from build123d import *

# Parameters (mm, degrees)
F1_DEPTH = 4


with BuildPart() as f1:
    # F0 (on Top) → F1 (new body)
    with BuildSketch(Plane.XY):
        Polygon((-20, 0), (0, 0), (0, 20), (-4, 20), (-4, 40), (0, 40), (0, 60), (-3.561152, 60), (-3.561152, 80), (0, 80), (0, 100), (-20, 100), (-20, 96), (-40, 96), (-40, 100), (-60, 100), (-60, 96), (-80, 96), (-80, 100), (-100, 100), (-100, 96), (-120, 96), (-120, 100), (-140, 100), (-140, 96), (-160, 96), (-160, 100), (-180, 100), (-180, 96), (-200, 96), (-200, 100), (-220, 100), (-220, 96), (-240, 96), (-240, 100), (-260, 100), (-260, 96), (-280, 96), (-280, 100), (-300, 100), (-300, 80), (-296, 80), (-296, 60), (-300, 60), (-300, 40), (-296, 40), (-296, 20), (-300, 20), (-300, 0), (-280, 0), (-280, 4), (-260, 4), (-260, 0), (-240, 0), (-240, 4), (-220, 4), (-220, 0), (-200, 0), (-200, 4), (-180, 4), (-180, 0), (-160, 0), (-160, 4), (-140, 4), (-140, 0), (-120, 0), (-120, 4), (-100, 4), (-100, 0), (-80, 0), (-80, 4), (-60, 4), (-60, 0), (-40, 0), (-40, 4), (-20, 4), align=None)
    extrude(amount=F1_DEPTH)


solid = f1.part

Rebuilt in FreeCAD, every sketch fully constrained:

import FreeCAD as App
import Part
import Sketcher
from FreeCAD import Vector

doc = App.newDocument("Part")
body = doc.addObject("PartDesign::Body", "Body")

sketch1 = body.newObject("Sketcher::SketchObject", "Sketch")
sketch1.AttachmentSupport = (doc.getObject("XY_Plane"), [""])
sketch1.MapMode = "FlatFace"
sketch1.addGeometry(Part.LineSegment(Vector(-20, 0, 0), Vector(0, 0, 0)), False)
sketch1.addGeometry(Part.LineSegment(Vector(0, 0, 0), Vector(0, 20, 0)), False)
sketch1.addGeometry(Part.LineSegment(Vector(0, 20, 0), Vector(-4, 20, 0)), False)
sketch1.addGeometry(Part.LineSegment(Vector(-4, 20, 0), Vector(-4, 40, 0)), False)
sketch1.addGeometry(Part.LineSegment(Vector(-4, 40, 0), Vector(0, 40, 0)), False)
sketch1.addGeometry(Part.LineSegment(Vector(0, 40, 0), Vector(0, 60, 0)), False)
sketch1.addGeometry(Part.LineSegment(Vector(0, 60, 0), Vector(-3.6, 60, 0)), False)
sketch1.addGeometry(Part.LineSegment(Vector(-3.6, 60, 0), Vector(-3.6, 80, 0)), False)
sketch1.addGeometry(Part.LineSegment(Vector(-3.6, 80, 0), Vector(0, 80, 0)), False)
sketch1.addGeometry(Part.LineSegment(Vector(0, 80, 0), Vector(0, 100, 0)), False)
sketch1.addGeometry(Part.LineSegment(Vector(0, 100, 0), Vector(-20, 100, 0)), False)
sketch1.addGeometry(Part.LineSegment(Vector(-20, 100, 0), Vector(-20, 96, 0)), False)
sketch1.addGeometry(Part.LineSegment(Vector(-20, 96, 0), Vector(-40, 96, 0)), False)
sketch1.addGeometry(Part.LineSegment(Vector(-40, 96, 0), Vector(-40, 100, 0)), False)
sketch1.addGeometry(Part.LineSegment(Vector(-40, 100, 0), Vector(-60, 100, 0)), False)
sketch1.addGeometry(Part.LineSegment(Vector(-60, 100, 0), Vector(-60, 96, 0)), False)
sketch1.addGeometry(Part.LineSegment(Vector(-60, 96, 0), Vector(-80, 96, 0)), False)
sketch1.addGeometry(Part.LineSegment(Vector(-80, 96, 0), Vector(-80, 100, 0)), False)
sketch1.addGeometry(Part.LineSegment(Vector(-80, 100, 0), Vector(-100, 100, 0)), False)
sketch1.addGeometry(Part.LineSegment(Vector(-100, 100, 0), Vector(-100, 96, 0)), False)
sketch1.addGeometry(Part.LineSegment(Vector(-100, 96, 0), Vector(-120, 96, 0)), False)
sketch1.addGeometry(Part.LineSegment(Vector(-120, 96, 0), Vector(-120, 100, 0)), False)
sketch1.addGeometry(Part.LineSegment(Vector(-120, 100, 0), Vector(-140, 100, 0)), False)
sketch1.addGeometry(Part.LineSegment(Vector(-140, 100, 0), Vector(-140, 96, 0)), False)
sketch1.addGeometry(Part.LineSegment(Vector(-140, 96, 0), Vector(-160, 96, 0)), False)
sketch1.addGeometry(Part.LineSegment(Vector(-160, 96, 0), Vector(-160, 100, 0)), False)
sketch1.addGeometry(Part.LineSegment(Vector(-160, 100, 0), Vector(-180, 100, 0)), False)
sketch1.addGeometry(Part.LineSegment(Vector(-180, 100, 0), Vector(-180, 96, 0)), False)
sketch1.addGeometry(Part.LineSegment(Vector(-180, 96, 0), Vector(-200, 96, 0)), False)
sketch1.addGeometry(Part.LineSegment(Vector(-200, 96, 0), Vector(-200, 100, 0)), False)
sketch1.addGeometry(Part.LineSegment(Vector(-200, 100, 0), Vector(-220, 100, 0)), False)
sketch1.addGeometry(Part.LineSegment(Vector(-220, 100, 0), Vector(-220, 96, 0)), False)
sketch1.addGeometry(Part.LineSegment(Vector(-220, 96, 0), Vector(-240, 96, 0)), False)
sketch1.addGeometry(Part.LineSegment(Vector(-240, 96, 0), Vector(-240, 100, 0)), False)
sketch1.addGeometry(Part.LineSegment(Vector(-240, 100, 0), Vector(-260, 100, 0)), False)
sketch1.addGeometry(Part.LineSegment(Vector(-260, 100, 0), Vector(-260, 96, 0)), False)
sketch1.addGeometry(Part.LineSegment(Vector(-260, 96, 0), Vector(-280, 96, 0)), False)
sketch1.addGeometry(Part.LineSegment(Vector(-280, 96, 0), Vector(-280, 100, 0)), False)
sketch1.addGeometry(Part.LineSegment(Vector(-280, 100, 0), Vector(-300, 100, 0)), False)
sketch1.addGeometry(Part.LineSegment(Vector(-300, 100, 0), Vector(-300, 80, 0)), False)
sketch1.addGeometry(Part.LineSegment(Vector(-300, 80, 0), Vector(-296, 80, 0)), False)
sketch1.addGeometry(Part.LineSegment(Vector(-296, 80, 0), Vector(-296, 60, 0)), False)
sketch1.addGeometry(Part.LineSegment(Vector(-296, 60, 0), Vector(-300, 60, 0)), False)
sketch1.addGeometry(Part.LineSegment(Vector(-300, 60, 0), Vector(-300, 40, 0)), False)
sketch1.addGeometry(Part.LineSegment(Vector(-300, 40, 0), Vector(-296, 40, 0)), False)
sketch1.addGeometry(Part.LineSegment(Vector(-296, 40, 0), Vector(-296, 20, 0)), False)
sketch1.addGeometry(Part.LineSegment(Vector(-296, 20, 0), Vector(-300, 20, 0)), False)
sketch1.addGeometry(Part.LineSegment(Vector(-300, 20, 0), Vector(-300, 0, 0)), False)
sketch1.addGeometry(Part.LineSegment(Vector(-300, 0, 0), Vector(-280, 0, 0)), False)
sketch1.addGeometry(Part.LineSegment(Vector(-280, 0, 0), Vector(-280, 4, 0)), False)
sketch1.addGeometry(Part.LineSegment(Vector(-280, 4, 0), Vector(-260, 4, 0)), False)
sketch1.addGeometry(Part.LineSegment(Vector(-260, 4, 0), Vector(-260, 0, 0)), False)
sketch1.addGeometry(Part.LineSegment(Vector(-260, 0, 0), Vector(-240, 0, 0)), False)
sketch1.addGeometry(Part.LineSegment(Vector(-240, 0, 0), Vector(-240, 4, 0)), False)
sketch1.addGeometry(Part.LineSegment(Vector(-240, 4, 0), Vector(-220, 4, 0)), False)
sketch1.addGeometry(Part.LineSegment(Vector(-220, 4, 0), Vector(-220, 0, 0)), False)
sketch1.addGeometry(Part.LineSegment(Vector(-220, 0, 0), Vector(-200, 0, 0)), False)
sketch1.addGeometry(Part.LineSegment(Vector(-200, 0, 0), Vector(-200, 4, 0)), False)
sketch1.addGeometry(Part.LineSegment(Vector(-200, 4, 0), Vector(-180, 4, 0)), False)
sketch1.addGeometry(Part.LineSegment(Vector(-180, 4, 0), Vector(-180, 0, 0)), False)
sketch1.addGeometry(Part.LineSegment(Vector(-180, 0, 0), Vector(-160, 0, 0)), False)
sketch1.addGeometry(Part.LineSegment(Vector(-160, 0, 0), Vector(-160, 4, 0)), False)
sketch1.addGeometry(Part.LineSegment(Vector(-160, 4, 0), Vector(-140, 4, 0)), False)
sketch1.addGeometry(Part.LineSegment(Vector(-140, 4, 0), Vector(-140, 0, 0)), False)
sketch1.addGeometry(Part.LineSegment(Vector(-140, 0, 0), Vector(-120, 0, 0)), False)
sketch1.addGeometry(Part.LineSegment(Vector(-120, 0, 0), Vector(-120, 4, 0)), False)
sketch1.addGeometry(Part.LineSegment(Vector(-120, 4, 0), Vector(-100, 4, 0)), False)
sketch1.addGeometry(Part.LineSegment(Vector(-100, 4, 0), Vector(-100, 0, 0)), False)
sketch1.addGeometry(Part.LineSegment(Vector(-100, 0, 0), Vector(-80, 0, 0)), False)
sketch1.addGeometry(Part.LineSegment(Vector(-80, 0, 0), Vector(-80, 4, 0)), False)
sketch1.addGeometry(Part.LineSegment(Vector(-80, 4, 0), Vector(-60, 4, 0)), False)
sketch1.addGeometry(Part.LineSegment(Vector(-60, 4, 0), Vector(-60, 0, 0)), False)
sketch1.addGeometry(Part.LineSegment(Vector(-60, 0, 0), Vector(-40, 0, 0)), False)
sketch1.addGeometry(Part.LineSegment(Vector(-40, 0, 0), Vector(-40, 4, 0)), False)
sketch1.addGeometry(Part.LineSegment(Vector(-40, 4, 0), Vector(-20, 4, 0)), False)
sketch1.addGeometry(Part.LineSegment(Vector(-20, 4, 0), Vector(-20, 0, 0)), False)
sketch1.addConstraint(Sketcher.Constraint("Coincident", 0, 2, 1, 1))
sketch1.addConstraint(Sketcher.Constraint("Coincident", 1, 2, 2, 1))
sketch1.addConstraint(Sketcher.Constraint("Coincident", 2, 2, 3, 1))
sketch1.addConstraint(Sketcher.Constraint("Coincident", 3, 2, 4, 1))
sketch1.addConstraint(Sketcher.Constraint("Coincident", 4, 2, 5, 1))
sketch1.addConstraint(Sketcher.Constraint("Coincident", 5, 2, 6, 1))
sketch1.addConstraint(Sketcher.Constraint("Coincident", 6, 2, 7, 1))
sketch1.addConstraint(Sketcher.Constraint("Coincident", 7, 2, 8, 1))
sketch1.addConstraint(Sketcher.Constraint("Coincident", 8, 2, 9, 1))
sketch1.addConstraint(Sketcher.Constraint("Coincident", 9, 2, 10, 1))
sketch1.addConstraint(Sketcher.Constraint("Coincident", 10, 2, 11, 1))
sketch1.addConstraint(Sketcher.Constraint("Coincident", 11, 2, 12, 1))
sketch1.addConstraint(Sketcher.Constraint("Coincident", 12, 2, 13, 1))
sketch1.addConstraint(Sketcher.Constraint("Coincident", 13, 2, 14, 1))
sketch1.addConstraint(Sketcher.Constraint("Coincident", 14, 2, 15, 1))
sketch1.addConstraint(Sketcher.Constraint("Coincident", 15, 2, 16, 1))
sketch1.addConstraint(Sketcher.Constraint("Coincident", 16, 2, 17, 1))
sketch1.addConstraint(Sketcher.Constraint("Coincident", 17, 2, 18, 1))
sketch1.addConstraint(Sketcher.Constraint("Coincident", 18, 2, 19, 1))
sketch1.addConstraint(Sketcher.Constraint("Coincident", 19, 2, 20, 1))
sketch1.addConstraint(Sketcher.Constraint("Coincident", 20, 2, 21, 1))
sketch1.addConstraint(Sketcher.Constraint("Coincident", 21, 2, 22, 1))
sketch1.addConstraint(Sketcher.Constraint("Coincident", 22, 2, 23, 1))
sketch1.addConstraint(Sketcher.Constraint("Coincident", 23, 2, 24, 1))
sketch1.addConstraint(Sketcher.Constraint("Coincident", 24, 2, 25, 1))
sketch1.addConstraint(Sketcher.Constraint("Coincident", 25, 2, 26, 1))
sketch1.addConstraint(Sketcher.Constraint("Coincident", 26, 2, 27, 1))
sketch1.addConstraint(Sketcher.Constraint("Coincident", 27, 2, 28, 1))
sketch1.addConstraint(Sketcher.Constraint("Coincident", 28, 2, 29, 1))
sketch1.addConstraint(Sketcher.Constraint("Coincident", 29, 2, 30, 1))
sketch1.addConstraint(Sketcher.Constraint("Coincident", 30, 2, 31, 1))
sketch1.addConstraint(Sketcher.Constraint("Coincident", 31, 2, 32, 1))
sketch1.addConstraint(Sketcher.Constraint("Coincident", 32, 2, 33, 1))
sketch1.addConstraint(Sketcher.Constraint("Coincident", 33, 2, 34, 1))
sketch1.addConstraint(Sketcher.Constraint("Coincident", 34, 2, 35, 1))
sketch1.addConstraint(Sketcher.Constraint("Coincident", 35, 2, 36, 1))
sketch1.addConstraint(Sketcher.Constraint("Coincident", 36, 2, 37, 1))
sketch1.addConstraint(Sketcher.Constraint("Coincident", 37, 2, 38, 1))
sketch1.addConstraint(Sketcher.Constraint("Coincident", 38, 2, 39, 1))
sketch1.addConstraint(Sketcher.Constraint("Coincident", 39, 2, 40, 1))
sketch1.addConstraint(Sketcher.Constraint("Coincident", 40, 2, 41, 1))
sketch1.addConstraint(Sketcher.Constraint("Coincident", 41, 2, 42, 1))
sketch1.addConstraint(Sketcher.Constraint("Coincident", 42, 2, 43, 1))
sketch1.addConstraint(Sketcher.Constraint("Coincident", 43, 2, 44, 1))
sketch1.addConstraint(Sketcher.Constraint("Coincident", 44, 2, 45, 1))
sketch1.addConstraint(Sketcher.Constraint("Coincident", 45, 2, 46, 1))
sketch1.addConstraint(Sketcher.Constraint("Coincident", 46, 2, 47, 1))
sketch1.addConstraint(Sketcher.Constraint("Coincident", 47, 2, 48, 1))
sketch1.addConstraint(Sketcher.Constraint("Coincident", 48, 2, 49, 1))
sketch1.addConstraint(Sketcher.Constraint("Coincident", 49, 2, 50, 1))
sketch1.addConstraint(Sketcher.Constraint("Coincident", 50, 2, 51, 1))
sketch1.addConstraint(Sketcher.Constraint("Coincident", 51, 2, 52, 1))
sketch1.addConstraint(Sketcher.Constraint("Coincident", 52, 2, 53, 1))
sketch1.addConstraint(Sketcher.Constraint("Coincident", 53, 2, 54, 1))
sketch1.addConstraint(Sketcher.Constraint("Coincident", 54, 2, 55, 1))
sketch1.addConstraint(Sketcher.Constraint("Coincident", 55, 2, 56, 1))
sketch1.addConstraint(Sketcher.Constraint("Coincident", 56, 2, 57, 1))
sketch1.addConstraint(Sketcher.Constraint("Coincident", 57, 2, 58, 1))
sketch1.addConstraint(Sketcher.Constraint("Coincident", 58, 2, 59, 1))
sketch1.addConstraint(Sketcher.Constraint("Coincident", 59, 2, 60, 1))
sketch1.addConstraint(Sketcher.Constraint("Coincident", 60, 2, 61, 1))
sketch1.addConstraint(Sketcher.Constraint("Coincident", 61, 2, 62, 1))
sketch1.addConstraint(Sketcher.Constraint("Coincident", 62, 2, 63, 1))
sketch1.addConstraint(Sketcher.Constraint("Coincident", 63, 2, 64, 1))
sketch1.addConstraint(Sketcher.Constraint("Coincident", 64, 2, 65, 1))
sketch1.addConstraint(Sketcher.Constraint("Coincident", 65, 2, 66, 1))
sketch1.addConstraint(Sketcher.Constraint("Coincident", 66, 2, 67, 1))
sketch1.addConstraint(Sketcher.Constraint("Coincident", 67, 2, 68, 1))
sketch1.addConstraint(Sketcher.Constraint("Coincident", 68, 2, 69, 1))
sketch1.addConstraint(Sketcher.Constraint("Coincident", 69, 2, 70, 1))
sketch1.addConstraint(Sketcher.Constraint("Coincident", 70, 2, 71, 1))
sketch1.addConstraint(Sketcher.Constraint("Coincident", 71, 2, 72, 1))
sketch1.addConstraint(Sketcher.Constraint("Coincident", 72, 2, 73, 1))
sketch1.addConstraint(Sketcher.Constraint("Coincident", 73, 2, 74, 1))
sketch1.addConstraint(Sketcher.Constraint("Coincident", 74, 2, 75, 1))
sketch1.addConstraint(Sketcher.Constraint("Coincident", 75, 2, 0, 1))
sketch1.addConstraint(Sketcher.Constraint("Horizontal", 0))
sketch1.addConstraint(Sketcher.Constraint("Vertical", 1))
sketch1.addConstraint(Sketcher.Constraint("Horizontal", 2))
sketch1.addConstraint(Sketcher.Constraint("Vertical", 3))
sketch1.addConstraint(Sketcher.Constraint("Horizontal", 4))
sketch1.addConstraint(Sketcher.Constraint("Vertical", 5))
sketch1.addConstraint(Sketcher.Constraint("Horizontal", 6))
sketch1.addConstraint(Sketcher.Constraint("Vertical", 7))
sketch1.addConstraint(Sketcher.Constraint("Horizontal", 8))
sketch1.addConstraint(Sketcher.Constraint("Vertical", 9))
sketch1.addConstraint(Sketcher.Constraint("Horizontal", 10))
sketch1.addConstraint(Sketcher.Constraint("Vertical", 11))
sketch1.addConstraint(Sketcher.Constraint("Horizontal", 12))
sketch1.addConstraint(Sketcher.Constraint("Vertical", 13))
sketch1.addConstraint(Sketcher.Constraint("Horizontal", 14))
sketch1.addConstraint(Sketcher.Constraint("Vertical", 15))
sketch1.addConstraint(Sketcher.Constraint("Horizontal", 16))
sketch1.addConstraint(Sketcher.Constraint("Vertical", 17))
sketch1.addConstraint(Sketcher.Constraint("Horizontal", 18))
sketch1.addConstraint(Sketcher.Constraint("Vertical", 19))
sketch1.addConstraint(Sketcher.Constraint("Horizontal", 20))
sketch1.addConstraint(Sketcher.Constraint("Vertical", 21))
sketch1.addConstraint(Sketcher.Constraint("Horizontal", 22))
sketch1.addConstraint(Sketcher.Constraint("Vertical", 23))
sketch1.addConstraint(Sketcher.Constraint("Horizontal", 24))
sketch1.addConstraint(Sketcher.Constraint("Vertical", 25))
sketch1.addConstraint(Sketcher.Constraint("Horizontal", 26))
sketch1.addConstraint(Sketcher.Constraint("Vertical", 27))
sketch1.addConstraint(Sketcher.Constraint("Horizontal", 28))
sketch1.addConstraint(Sketcher.Constraint("Vertical", 29))
sketch1.addConstraint(Sketcher.Constraint("Horizontal", 30))
sketch1.addConstraint(Sketcher.Constraint("Vertical", 31))
sketch1.addConstraint(Sketcher.Constraint("Horizontal", 32))
sketch1.addConstraint(Sketcher.Constraint("Vertical", 33))
sketch1.addConstraint(Sketcher.Constraint("Horizontal", 34))
sketch1.addConstraint(Sketcher.Constraint("Vertical", 35))
sketch1.addConstraint(Sketcher.Constraint("Horizontal", 36))
sketch1.addConstraint(Sketcher.Constraint("Vertical", 37))
sketch1.addConstraint(Sketcher.Constraint("Horizontal", 38))
sketch1.addConstraint(Sketcher.Constraint("Vertical", 39))
sketch1.addConstraint(Sketcher.Constraint("Horizontal", 40))
sketch1.addConstraint(Sketcher.Constraint("Vertical", 41))
sketch1.addConstraint(Sketcher.Constraint("Horizontal", 42))
sketch1.addConstraint(Sketcher.Constraint("Vertical", 43))
sketch1.addConstraint(Sketcher.Constraint("Horizontal", 44))
sketch1.addConstraint(Sketcher.Constraint("Vertical", 45))
sketch1.addConstraint(Sketcher.Constraint("Horizontal", 46))
sketch1.addConstraint(Sketcher.Constraint("Vertical", 47))
sketch1.addConstraint(Sketcher.Constraint("Horizontal", 48))
sketch1.addConstraint(Sketcher.Constraint("Vertical", 49))
sketch1.addConstraint(Sketcher.Constraint("Horizontal", 50))
sketch1.addConstraint(Sketcher.Constraint("Vertical", 51))
sketch1.addConstraint(Sketcher.Constraint("Horizontal", 52))
sketch1.addConstraint(Sketcher.Constraint("Vertical", 53))
sketch1.addConstraint(Sketcher.Constraint("Horizontal", 54))
sketch1.addConstraint(Sketcher.Constraint("Vertical", 55))
sketch1.addConstraint(Sketcher.Constraint("Horizontal", 56))
sketch1.addConstraint(Sketcher.Constraint("Vertical", 57))
sketch1.addConstraint(Sketcher.Constraint("Horizontal", 58))
sketch1.addConstraint(Sketcher.Constraint("Vertical", 59))
sketch1.addConstraint(Sketcher.Constraint("Horizontal", 60))
sketch1.addConstraint(Sketcher.Constraint("Vertical", 61))
sketch1.addConstraint(Sketcher.Constraint("Horizontal", 62))
sketch1.addConstraint(Sketcher.Constraint("Vertical", 63))
sketch1.addConstraint(Sketcher.Constraint("Horizontal", 64))
sketch1.addConstraint(Sketcher.Constraint("Vertical", 65))
sketch1.addConstraint(Sketcher.Constraint("Horizontal", 66))
sketch1.addConstraint(Sketcher.Constraint("Vertical", 67))
sketch1.addConstraint(Sketcher.Constraint("Horizontal", 68))
sketch1.addConstraint(Sketcher.Constraint("Vertical", 69))
sketch1.addConstraint(Sketcher.Constraint("Horizontal", 70))
sketch1.addConstraint(Sketcher.Constraint("Vertical", 71))
sketch1.addConstraint(Sketcher.Constraint("Horizontal", 72))
sketch1.addConstraint(Sketcher.Constraint("Vertical", 73))
sketch1.addConstraint(Sketcher.Constraint("Horizontal", 74))
sketch1.addConstraint(Sketcher.Constraint("Vertical", 75))
sketch1.addConstraint(Sketcher.Constraint("Coincident", 0, 2, -1, 1))
sketch1.addConstraint(Sketcher.Constraint("PointOnObject", 4, 2, -2))
sketch1.addConstraint(Sketcher.Constraint("PointOnObject", 8, 2, -2))
sketch1.addConstraint(Sketcher.Constraint("PointOnObject", 47, 2, -1))
sketch1.addConstraint(Sketcher.Constraint("PointOnObject", 51, 2, -1))
sketch1.addConstraint(Sketcher.Constraint("PointOnObject", 55, 2, -1))
sketch1.addConstraint(Sketcher.Constraint("PointOnObject", 59, 2, -1))
sketch1.addConstraint(Sketcher.Constraint("PointOnObject", 63, 2, -1))
sketch1.addConstraint(Sketcher.Constraint("PointOnObject", 67, 2, -1))
sketch1.addConstraint(Sketcher.Constraint("PointOnObject", 71, 2, -1))
sketch1.addConstraint(Sketcher.Constraint("Horizontal", 10, 2, 13, 2))
sketch1.addConstraint(Sketcher.Constraint("Horizontal", 12, 2, 15, 2))
sketch1.addConstraint(Sketcher.Constraint("Horizontal", 14, 2, 17, 2))
sketch1.addConstraint(Sketcher.Constraint("Horizontal", 16, 2, 19, 2))
sketch1.addConstraint(Sketcher.Constraint("Horizontal", 18, 2, 21, 2))
sketch1.addConstraint(Sketcher.Constraint("Horizontal", 20, 2, 23, 2))
sketch1.addConstraint(Sketcher.Constraint("Horizontal", 22, 2, 25, 2))
sketch1.addConstraint(Sketcher.Constraint("Horizontal", 24, 2, 27, 2))
sketch1.addConstraint(Sketcher.Constraint("Horizontal", 26, 2, 29, 2))
sketch1.addConstraint(Sketcher.Constraint("Horizontal", 28, 2, 31, 2))
sketch1.addConstraint(Sketcher.Constraint("Horizontal", 30, 2, 33, 2))
sketch1.addConstraint(Sketcher.Constraint("Horizontal", 32, 2, 35, 2))
sketch1.addConstraint(Sketcher.Constraint("Horizontal", 34, 2, 37, 2))
sketch1.addConstraint(Sketcher.Constraint("Horizontal", 8, 2, 39, 2))
sketch1.addConstraint(Sketcher.Constraint("Horizontal", 6, 2, 41, 2))
sketch1.addConstraint(Sketcher.Constraint("Horizontal", 4, 2, 43, 2))
sketch1.addConstraint(Sketcher.Constraint("Horizontal", 2, 2, 45, 2))
sketch1.addConstraint(Sketcher.Constraint("Horizontal", 50, 2, 53, 2))
sketch1.addConstraint(Sketcher.Constraint("Horizontal", 54, 2, 57, 2))
sketch1.addConstraint(Sketcher.Constraint("Horizontal", 58, 2, 61, 2))
sketch1.addConstraint(Sketcher.Constraint("Horizontal", 62, 2, 65, 2))
sketch1.addConstraint(Sketcher.Constraint("Horizontal", 66, 2, 69, 2))
sketch1.addConstraint(Sketcher.Constraint("Horizontal", 70, 2, 73, 2))
sketch1.addConstraint(Sketcher.Constraint("Vertical", 39, 2, 42, 2))
sketch1.addConstraint(Sketcher.Constraint("Vertical", 41, 2, 44, 2))
sketch1.addConstraint(Sketcher.Constraint("Vertical", 43, 2, 46, 2))
sketch1.addConstraint(Sketcher.Constraint("Vertical", 37, 2, 48, 2))
sketch1.addConstraint(Sketcher.Constraint("Vertical", 35, 2, 50, 2))
sketch1.addConstraint(Sketcher.Constraint("Vertical", 33, 2, 52, 2))
sketch1.addConstraint(Sketcher.Constraint("Vertical", 31, 2, 54, 2))
sketch1.addConstraint(Sketcher.Constraint("Vertical", 29, 2, 56, 2))
sketch1.addConstraint(Sketcher.Constraint("Vertical", 27, 2, 58, 2))
sketch1.addConstraint(Sketcher.Constraint("Vertical", 25, 2, 60, 2))
sketch1.addConstraint(Sketcher.Constraint("Vertical", 23, 2, 62, 2))
sketch1.addConstraint(Sketcher.Constraint("Vertical", 21, 2, 64, 2))
sketch1.addConstraint(Sketcher.Constraint("Vertical", 19, 2, 66, 2))
sketch1.addConstraint(Sketcher.Constraint("Vertical", 17, 2, 68, 2))
sketch1.addConstraint(Sketcher.Constraint("Vertical", 15, 2, 70, 2))
sketch1.addConstraint(Sketcher.Constraint("Vertical", 13, 2, 72, 2))
sketch1.addConstraint(Sketcher.Constraint("Vertical", 11, 2, 74, 2))
sketch1.addConstraint(Sketcher.Constraint("Equal", 10, 12))
sketch1.addConstraint(Sketcher.Constraint("Equal", 12, 14))
sketch1.addConstraint(Sketcher.Constraint("Equal", 14, 16))
sketch1.addConstraint(Sketcher.Constraint("Equal", 16, 18))
sketch1.addConstraint(Sketcher.Constraint("Equal", 18, 20))
sketch1.addConstraint(Sketcher.Constraint("Equal", 20, 22))
sketch1.addConstraint(Sketcher.Constraint("Equal", 22, 24))
sketch1.addConstraint(Sketcher.Constraint("Equal", 24, 26))
sketch1.addConstraint(Sketcher.Constraint("Equal", 26, 28))
sketch1.addConstraint(Sketcher.Constraint("Equal", 28, 30))
sketch1.addConstraint(Sketcher.Constraint("Equal", 30, 32))
sketch1.addConstraint(Sketcher.Constraint("Equal", 32, 34))
sketch1.addConstraint(Sketcher.Constraint("Equal", 34, 36))
sketch1.addConstraint(Sketcher.Constraint("Equal", 36, 38))
sketch1.addConstraint(Sketcher.Constraint("Equal", 4, 40))
sketch1.addConstraint(Sketcher.Constraint("Equal", 74, 1))
sketch1.addConstraint(Sketcher.Constraint("Equal", 1, 3))
sketch1.addConstraint(Sketcher.Constraint("Equal", 3, 5))
sketch1.addConstraint(Sketcher.Constraint("Equal", 5, 7))
sketch1.addConstraint(Sketcher.Constraint("Equal", 7, 9))
sketch1.addConstraint(Sketcher.Constraint("Equal", 46, 11))
sketch1.addConstraint(Sketcher.Constraint("Equal", 37, 49))
sketch1.addConstraint(Sketcher.Constraint("DistanceX", 0, 1, 0, 2, 20.0))
sketch1.addConstraint(Sketcher.Constraint("DistanceX", 2, 2, 2, 1, 4.0))
sketch1.addConstraint(Sketcher.Constraint("DistanceX", 6, 2, 6, 1, 3.561152))
pad1 = body.newObject("PartDesign::Pad", "Pad")
pad1.Profile = sketch1
pad1.Length = 4

doc.recompute()
